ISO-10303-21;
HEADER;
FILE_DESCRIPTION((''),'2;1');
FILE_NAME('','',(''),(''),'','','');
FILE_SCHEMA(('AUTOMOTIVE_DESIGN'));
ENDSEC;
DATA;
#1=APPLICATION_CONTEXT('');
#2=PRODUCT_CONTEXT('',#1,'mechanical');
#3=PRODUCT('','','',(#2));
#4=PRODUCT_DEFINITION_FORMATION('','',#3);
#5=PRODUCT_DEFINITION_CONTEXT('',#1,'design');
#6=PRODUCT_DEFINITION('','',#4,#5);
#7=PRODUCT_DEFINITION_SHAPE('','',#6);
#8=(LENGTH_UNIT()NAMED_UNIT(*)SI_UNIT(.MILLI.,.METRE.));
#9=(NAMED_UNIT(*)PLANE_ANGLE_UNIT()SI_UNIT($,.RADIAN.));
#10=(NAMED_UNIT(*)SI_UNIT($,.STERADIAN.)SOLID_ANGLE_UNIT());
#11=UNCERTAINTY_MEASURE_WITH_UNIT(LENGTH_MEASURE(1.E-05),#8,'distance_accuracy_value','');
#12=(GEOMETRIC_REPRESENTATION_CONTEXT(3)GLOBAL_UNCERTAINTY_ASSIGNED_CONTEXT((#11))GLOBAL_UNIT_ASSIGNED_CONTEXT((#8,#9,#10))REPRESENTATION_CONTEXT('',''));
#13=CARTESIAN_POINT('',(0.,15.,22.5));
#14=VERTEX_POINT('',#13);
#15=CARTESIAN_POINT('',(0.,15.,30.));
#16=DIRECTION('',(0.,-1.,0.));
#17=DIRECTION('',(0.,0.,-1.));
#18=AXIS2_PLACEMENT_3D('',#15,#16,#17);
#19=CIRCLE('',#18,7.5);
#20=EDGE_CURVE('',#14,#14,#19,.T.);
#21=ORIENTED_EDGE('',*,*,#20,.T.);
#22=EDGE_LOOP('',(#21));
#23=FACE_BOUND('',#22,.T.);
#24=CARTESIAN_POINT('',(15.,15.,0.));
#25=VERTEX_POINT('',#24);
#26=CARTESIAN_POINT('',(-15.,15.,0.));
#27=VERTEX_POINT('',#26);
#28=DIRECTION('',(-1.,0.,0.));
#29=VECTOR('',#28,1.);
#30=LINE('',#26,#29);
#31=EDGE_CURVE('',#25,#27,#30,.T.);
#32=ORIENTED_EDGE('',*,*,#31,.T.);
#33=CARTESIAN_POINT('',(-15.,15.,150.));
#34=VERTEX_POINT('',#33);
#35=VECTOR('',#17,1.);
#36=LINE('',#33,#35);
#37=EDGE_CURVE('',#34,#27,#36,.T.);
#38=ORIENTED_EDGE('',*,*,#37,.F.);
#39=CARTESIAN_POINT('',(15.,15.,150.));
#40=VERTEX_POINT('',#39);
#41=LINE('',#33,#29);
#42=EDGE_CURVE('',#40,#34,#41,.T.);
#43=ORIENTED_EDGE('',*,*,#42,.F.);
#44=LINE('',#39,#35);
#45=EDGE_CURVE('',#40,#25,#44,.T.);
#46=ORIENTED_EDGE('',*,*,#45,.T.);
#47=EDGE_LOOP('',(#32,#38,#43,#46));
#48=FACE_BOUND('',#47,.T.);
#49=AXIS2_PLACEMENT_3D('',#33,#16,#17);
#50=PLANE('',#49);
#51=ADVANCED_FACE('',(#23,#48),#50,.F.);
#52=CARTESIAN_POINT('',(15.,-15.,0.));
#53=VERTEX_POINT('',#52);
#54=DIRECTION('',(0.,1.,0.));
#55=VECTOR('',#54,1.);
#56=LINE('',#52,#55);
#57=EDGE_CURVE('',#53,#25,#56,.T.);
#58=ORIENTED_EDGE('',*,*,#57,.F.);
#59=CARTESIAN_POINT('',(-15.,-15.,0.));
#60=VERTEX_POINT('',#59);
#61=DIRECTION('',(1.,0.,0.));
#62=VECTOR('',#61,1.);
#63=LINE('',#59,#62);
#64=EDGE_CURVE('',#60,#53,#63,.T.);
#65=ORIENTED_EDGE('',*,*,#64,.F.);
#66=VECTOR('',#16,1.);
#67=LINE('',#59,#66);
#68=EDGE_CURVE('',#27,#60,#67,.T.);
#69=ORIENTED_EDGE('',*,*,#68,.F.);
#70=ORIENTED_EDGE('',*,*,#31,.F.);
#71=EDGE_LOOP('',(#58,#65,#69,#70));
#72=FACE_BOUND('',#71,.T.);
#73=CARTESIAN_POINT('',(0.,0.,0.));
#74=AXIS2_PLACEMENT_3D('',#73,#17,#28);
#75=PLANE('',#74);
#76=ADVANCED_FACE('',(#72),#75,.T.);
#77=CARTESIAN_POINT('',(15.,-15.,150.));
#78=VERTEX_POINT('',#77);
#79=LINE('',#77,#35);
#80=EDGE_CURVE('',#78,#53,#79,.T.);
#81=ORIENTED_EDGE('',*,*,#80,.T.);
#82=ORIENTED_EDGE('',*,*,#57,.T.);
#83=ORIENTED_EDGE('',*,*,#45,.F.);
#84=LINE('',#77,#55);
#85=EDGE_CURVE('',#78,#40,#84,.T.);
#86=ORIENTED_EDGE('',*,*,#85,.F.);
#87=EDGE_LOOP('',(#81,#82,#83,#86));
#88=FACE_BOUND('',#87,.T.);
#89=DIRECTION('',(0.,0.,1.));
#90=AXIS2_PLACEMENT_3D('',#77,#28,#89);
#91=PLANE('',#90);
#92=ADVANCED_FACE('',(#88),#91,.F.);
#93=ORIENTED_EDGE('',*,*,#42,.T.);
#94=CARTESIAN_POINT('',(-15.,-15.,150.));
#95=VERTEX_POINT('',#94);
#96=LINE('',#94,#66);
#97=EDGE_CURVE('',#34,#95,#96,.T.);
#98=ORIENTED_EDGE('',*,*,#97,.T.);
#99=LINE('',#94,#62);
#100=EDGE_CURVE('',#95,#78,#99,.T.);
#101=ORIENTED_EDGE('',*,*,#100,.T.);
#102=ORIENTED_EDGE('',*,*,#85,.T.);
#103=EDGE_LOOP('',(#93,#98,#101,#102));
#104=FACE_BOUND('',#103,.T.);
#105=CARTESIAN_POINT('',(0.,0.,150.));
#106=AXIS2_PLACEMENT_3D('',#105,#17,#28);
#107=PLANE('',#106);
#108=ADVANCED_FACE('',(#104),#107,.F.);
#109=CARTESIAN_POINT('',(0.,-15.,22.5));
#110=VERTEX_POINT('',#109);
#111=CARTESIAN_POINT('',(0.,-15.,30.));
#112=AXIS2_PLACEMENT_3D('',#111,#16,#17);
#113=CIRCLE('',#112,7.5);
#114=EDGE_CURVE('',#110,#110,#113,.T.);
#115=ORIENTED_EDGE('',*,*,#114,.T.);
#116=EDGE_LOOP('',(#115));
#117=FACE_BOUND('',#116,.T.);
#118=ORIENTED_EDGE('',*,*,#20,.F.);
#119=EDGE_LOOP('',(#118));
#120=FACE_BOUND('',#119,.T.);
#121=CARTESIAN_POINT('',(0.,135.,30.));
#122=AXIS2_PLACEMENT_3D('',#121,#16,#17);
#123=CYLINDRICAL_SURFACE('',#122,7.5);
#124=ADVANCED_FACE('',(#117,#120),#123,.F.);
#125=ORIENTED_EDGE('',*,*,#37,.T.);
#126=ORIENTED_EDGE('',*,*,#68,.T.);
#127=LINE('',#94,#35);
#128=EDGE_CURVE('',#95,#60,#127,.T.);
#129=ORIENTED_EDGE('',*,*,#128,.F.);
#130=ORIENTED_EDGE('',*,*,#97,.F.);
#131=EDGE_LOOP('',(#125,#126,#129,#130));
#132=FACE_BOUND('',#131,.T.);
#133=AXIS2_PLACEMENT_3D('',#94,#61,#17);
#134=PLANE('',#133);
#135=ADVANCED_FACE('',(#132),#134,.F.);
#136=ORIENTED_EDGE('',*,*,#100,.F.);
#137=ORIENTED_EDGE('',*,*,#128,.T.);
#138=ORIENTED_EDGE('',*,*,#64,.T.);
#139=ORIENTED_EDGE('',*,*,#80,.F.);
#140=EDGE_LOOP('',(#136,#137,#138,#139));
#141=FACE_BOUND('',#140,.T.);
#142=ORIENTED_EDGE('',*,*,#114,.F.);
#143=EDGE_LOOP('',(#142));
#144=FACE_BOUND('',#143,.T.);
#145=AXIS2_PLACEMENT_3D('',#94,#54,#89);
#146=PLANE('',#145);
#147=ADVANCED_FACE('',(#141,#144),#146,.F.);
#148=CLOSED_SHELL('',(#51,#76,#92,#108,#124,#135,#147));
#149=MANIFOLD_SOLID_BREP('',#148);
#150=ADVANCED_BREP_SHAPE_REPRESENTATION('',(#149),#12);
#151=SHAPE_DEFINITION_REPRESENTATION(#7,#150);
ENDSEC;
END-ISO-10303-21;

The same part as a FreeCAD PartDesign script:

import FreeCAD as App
import Part
import Sketcher
Q = App.Units.Quantity


def add_polygon(sketch, points):
    """Adds a closed chain of lines whose ends are joined by coincident constraints."""
    first, n = sketch.GeometryCount, len(points)
    for a, b in zip(points, points[1:] + points[:1]):
        sketch.addGeometry(Part.LineSegment(App.Vector(*a, 0), App.Vector(*b, 0)), False)
    for i in range(n):
        sketch.addConstraint(Sketcher.Constraint("Coincident", first + i, 2, first + (i + 1) % n, 1))

doc = App.newDocument("Part")
body = doc.addObject("PartDesign::Body", "Body")

# Sketch on XY plane
sketch1 = doc.addObject("Sketcher::SketchObject", "Sketch")
body.addObject(sketch1)
sketch1.AttachmentSupport = (doc.XY_Plane, [""])
sketch1.MapMode = "FlatFace"
add_polygon(sketch1, [(-15, 15), (-15, -15), (15, -15), (15, 15)])  # lines 0-3
sketch1.addConstraint([
    Sketcher.Constraint("Vertical", 0),
    Sketcher.Constraint("Horizontal", 1),
    Sketcher.Constraint("Vertical", 2),
    Sketcher.Constraint("Horizontal", 3),
    Sketcher.Constraint("Symmetric", 0, 2, 2, 2, -1, 1),
    Sketcher.Constraint("Equal", 3, 0),
    Sketcher.Constraint("DistanceX", 1, 1, 1, 2, Q("30 mm")),
])
pad1 = doc.addObject("PartDesign::Pad", "Pad")
body.addObject(pad1)
pad1.Profile = sketch1
pad1.Length = 150

# Sketch on XZ plane
sketch2 = doc.addObject("Sketcher::SketchObject", "Sketch001")
body.addObject(sketch2)
sketch2.AttachmentSupport = (doc.XZ_Plane, [""])
sketch2.MapMode = "FlatFace"
sketch2.AttachmentOffset = App.Placement(App.Vector(0, 0, 15), App.Rotation())
sketch2.addGeometry(Part.Circle(App.Vector(0, 30, 0), App.Vector(0, 0, 1), 8), False)
sketch2.addConstraint([
    Sketcher.Constraint("PointOnObject", 0, 3, -2),
    Sketcher.Constraint("Diameter", 0, Q("15 mm")),
    Sketcher.Constraint("DistanceY", -1, 1, 0, 3, Q("30 mm")),
])
pocket1 = doc.addObject("PartDesign::Pocket", "Pocket")
body.addObject(pocket1)
pocket1.Profile = sketch2
pocket1.Length = 150

doc.recompute()
